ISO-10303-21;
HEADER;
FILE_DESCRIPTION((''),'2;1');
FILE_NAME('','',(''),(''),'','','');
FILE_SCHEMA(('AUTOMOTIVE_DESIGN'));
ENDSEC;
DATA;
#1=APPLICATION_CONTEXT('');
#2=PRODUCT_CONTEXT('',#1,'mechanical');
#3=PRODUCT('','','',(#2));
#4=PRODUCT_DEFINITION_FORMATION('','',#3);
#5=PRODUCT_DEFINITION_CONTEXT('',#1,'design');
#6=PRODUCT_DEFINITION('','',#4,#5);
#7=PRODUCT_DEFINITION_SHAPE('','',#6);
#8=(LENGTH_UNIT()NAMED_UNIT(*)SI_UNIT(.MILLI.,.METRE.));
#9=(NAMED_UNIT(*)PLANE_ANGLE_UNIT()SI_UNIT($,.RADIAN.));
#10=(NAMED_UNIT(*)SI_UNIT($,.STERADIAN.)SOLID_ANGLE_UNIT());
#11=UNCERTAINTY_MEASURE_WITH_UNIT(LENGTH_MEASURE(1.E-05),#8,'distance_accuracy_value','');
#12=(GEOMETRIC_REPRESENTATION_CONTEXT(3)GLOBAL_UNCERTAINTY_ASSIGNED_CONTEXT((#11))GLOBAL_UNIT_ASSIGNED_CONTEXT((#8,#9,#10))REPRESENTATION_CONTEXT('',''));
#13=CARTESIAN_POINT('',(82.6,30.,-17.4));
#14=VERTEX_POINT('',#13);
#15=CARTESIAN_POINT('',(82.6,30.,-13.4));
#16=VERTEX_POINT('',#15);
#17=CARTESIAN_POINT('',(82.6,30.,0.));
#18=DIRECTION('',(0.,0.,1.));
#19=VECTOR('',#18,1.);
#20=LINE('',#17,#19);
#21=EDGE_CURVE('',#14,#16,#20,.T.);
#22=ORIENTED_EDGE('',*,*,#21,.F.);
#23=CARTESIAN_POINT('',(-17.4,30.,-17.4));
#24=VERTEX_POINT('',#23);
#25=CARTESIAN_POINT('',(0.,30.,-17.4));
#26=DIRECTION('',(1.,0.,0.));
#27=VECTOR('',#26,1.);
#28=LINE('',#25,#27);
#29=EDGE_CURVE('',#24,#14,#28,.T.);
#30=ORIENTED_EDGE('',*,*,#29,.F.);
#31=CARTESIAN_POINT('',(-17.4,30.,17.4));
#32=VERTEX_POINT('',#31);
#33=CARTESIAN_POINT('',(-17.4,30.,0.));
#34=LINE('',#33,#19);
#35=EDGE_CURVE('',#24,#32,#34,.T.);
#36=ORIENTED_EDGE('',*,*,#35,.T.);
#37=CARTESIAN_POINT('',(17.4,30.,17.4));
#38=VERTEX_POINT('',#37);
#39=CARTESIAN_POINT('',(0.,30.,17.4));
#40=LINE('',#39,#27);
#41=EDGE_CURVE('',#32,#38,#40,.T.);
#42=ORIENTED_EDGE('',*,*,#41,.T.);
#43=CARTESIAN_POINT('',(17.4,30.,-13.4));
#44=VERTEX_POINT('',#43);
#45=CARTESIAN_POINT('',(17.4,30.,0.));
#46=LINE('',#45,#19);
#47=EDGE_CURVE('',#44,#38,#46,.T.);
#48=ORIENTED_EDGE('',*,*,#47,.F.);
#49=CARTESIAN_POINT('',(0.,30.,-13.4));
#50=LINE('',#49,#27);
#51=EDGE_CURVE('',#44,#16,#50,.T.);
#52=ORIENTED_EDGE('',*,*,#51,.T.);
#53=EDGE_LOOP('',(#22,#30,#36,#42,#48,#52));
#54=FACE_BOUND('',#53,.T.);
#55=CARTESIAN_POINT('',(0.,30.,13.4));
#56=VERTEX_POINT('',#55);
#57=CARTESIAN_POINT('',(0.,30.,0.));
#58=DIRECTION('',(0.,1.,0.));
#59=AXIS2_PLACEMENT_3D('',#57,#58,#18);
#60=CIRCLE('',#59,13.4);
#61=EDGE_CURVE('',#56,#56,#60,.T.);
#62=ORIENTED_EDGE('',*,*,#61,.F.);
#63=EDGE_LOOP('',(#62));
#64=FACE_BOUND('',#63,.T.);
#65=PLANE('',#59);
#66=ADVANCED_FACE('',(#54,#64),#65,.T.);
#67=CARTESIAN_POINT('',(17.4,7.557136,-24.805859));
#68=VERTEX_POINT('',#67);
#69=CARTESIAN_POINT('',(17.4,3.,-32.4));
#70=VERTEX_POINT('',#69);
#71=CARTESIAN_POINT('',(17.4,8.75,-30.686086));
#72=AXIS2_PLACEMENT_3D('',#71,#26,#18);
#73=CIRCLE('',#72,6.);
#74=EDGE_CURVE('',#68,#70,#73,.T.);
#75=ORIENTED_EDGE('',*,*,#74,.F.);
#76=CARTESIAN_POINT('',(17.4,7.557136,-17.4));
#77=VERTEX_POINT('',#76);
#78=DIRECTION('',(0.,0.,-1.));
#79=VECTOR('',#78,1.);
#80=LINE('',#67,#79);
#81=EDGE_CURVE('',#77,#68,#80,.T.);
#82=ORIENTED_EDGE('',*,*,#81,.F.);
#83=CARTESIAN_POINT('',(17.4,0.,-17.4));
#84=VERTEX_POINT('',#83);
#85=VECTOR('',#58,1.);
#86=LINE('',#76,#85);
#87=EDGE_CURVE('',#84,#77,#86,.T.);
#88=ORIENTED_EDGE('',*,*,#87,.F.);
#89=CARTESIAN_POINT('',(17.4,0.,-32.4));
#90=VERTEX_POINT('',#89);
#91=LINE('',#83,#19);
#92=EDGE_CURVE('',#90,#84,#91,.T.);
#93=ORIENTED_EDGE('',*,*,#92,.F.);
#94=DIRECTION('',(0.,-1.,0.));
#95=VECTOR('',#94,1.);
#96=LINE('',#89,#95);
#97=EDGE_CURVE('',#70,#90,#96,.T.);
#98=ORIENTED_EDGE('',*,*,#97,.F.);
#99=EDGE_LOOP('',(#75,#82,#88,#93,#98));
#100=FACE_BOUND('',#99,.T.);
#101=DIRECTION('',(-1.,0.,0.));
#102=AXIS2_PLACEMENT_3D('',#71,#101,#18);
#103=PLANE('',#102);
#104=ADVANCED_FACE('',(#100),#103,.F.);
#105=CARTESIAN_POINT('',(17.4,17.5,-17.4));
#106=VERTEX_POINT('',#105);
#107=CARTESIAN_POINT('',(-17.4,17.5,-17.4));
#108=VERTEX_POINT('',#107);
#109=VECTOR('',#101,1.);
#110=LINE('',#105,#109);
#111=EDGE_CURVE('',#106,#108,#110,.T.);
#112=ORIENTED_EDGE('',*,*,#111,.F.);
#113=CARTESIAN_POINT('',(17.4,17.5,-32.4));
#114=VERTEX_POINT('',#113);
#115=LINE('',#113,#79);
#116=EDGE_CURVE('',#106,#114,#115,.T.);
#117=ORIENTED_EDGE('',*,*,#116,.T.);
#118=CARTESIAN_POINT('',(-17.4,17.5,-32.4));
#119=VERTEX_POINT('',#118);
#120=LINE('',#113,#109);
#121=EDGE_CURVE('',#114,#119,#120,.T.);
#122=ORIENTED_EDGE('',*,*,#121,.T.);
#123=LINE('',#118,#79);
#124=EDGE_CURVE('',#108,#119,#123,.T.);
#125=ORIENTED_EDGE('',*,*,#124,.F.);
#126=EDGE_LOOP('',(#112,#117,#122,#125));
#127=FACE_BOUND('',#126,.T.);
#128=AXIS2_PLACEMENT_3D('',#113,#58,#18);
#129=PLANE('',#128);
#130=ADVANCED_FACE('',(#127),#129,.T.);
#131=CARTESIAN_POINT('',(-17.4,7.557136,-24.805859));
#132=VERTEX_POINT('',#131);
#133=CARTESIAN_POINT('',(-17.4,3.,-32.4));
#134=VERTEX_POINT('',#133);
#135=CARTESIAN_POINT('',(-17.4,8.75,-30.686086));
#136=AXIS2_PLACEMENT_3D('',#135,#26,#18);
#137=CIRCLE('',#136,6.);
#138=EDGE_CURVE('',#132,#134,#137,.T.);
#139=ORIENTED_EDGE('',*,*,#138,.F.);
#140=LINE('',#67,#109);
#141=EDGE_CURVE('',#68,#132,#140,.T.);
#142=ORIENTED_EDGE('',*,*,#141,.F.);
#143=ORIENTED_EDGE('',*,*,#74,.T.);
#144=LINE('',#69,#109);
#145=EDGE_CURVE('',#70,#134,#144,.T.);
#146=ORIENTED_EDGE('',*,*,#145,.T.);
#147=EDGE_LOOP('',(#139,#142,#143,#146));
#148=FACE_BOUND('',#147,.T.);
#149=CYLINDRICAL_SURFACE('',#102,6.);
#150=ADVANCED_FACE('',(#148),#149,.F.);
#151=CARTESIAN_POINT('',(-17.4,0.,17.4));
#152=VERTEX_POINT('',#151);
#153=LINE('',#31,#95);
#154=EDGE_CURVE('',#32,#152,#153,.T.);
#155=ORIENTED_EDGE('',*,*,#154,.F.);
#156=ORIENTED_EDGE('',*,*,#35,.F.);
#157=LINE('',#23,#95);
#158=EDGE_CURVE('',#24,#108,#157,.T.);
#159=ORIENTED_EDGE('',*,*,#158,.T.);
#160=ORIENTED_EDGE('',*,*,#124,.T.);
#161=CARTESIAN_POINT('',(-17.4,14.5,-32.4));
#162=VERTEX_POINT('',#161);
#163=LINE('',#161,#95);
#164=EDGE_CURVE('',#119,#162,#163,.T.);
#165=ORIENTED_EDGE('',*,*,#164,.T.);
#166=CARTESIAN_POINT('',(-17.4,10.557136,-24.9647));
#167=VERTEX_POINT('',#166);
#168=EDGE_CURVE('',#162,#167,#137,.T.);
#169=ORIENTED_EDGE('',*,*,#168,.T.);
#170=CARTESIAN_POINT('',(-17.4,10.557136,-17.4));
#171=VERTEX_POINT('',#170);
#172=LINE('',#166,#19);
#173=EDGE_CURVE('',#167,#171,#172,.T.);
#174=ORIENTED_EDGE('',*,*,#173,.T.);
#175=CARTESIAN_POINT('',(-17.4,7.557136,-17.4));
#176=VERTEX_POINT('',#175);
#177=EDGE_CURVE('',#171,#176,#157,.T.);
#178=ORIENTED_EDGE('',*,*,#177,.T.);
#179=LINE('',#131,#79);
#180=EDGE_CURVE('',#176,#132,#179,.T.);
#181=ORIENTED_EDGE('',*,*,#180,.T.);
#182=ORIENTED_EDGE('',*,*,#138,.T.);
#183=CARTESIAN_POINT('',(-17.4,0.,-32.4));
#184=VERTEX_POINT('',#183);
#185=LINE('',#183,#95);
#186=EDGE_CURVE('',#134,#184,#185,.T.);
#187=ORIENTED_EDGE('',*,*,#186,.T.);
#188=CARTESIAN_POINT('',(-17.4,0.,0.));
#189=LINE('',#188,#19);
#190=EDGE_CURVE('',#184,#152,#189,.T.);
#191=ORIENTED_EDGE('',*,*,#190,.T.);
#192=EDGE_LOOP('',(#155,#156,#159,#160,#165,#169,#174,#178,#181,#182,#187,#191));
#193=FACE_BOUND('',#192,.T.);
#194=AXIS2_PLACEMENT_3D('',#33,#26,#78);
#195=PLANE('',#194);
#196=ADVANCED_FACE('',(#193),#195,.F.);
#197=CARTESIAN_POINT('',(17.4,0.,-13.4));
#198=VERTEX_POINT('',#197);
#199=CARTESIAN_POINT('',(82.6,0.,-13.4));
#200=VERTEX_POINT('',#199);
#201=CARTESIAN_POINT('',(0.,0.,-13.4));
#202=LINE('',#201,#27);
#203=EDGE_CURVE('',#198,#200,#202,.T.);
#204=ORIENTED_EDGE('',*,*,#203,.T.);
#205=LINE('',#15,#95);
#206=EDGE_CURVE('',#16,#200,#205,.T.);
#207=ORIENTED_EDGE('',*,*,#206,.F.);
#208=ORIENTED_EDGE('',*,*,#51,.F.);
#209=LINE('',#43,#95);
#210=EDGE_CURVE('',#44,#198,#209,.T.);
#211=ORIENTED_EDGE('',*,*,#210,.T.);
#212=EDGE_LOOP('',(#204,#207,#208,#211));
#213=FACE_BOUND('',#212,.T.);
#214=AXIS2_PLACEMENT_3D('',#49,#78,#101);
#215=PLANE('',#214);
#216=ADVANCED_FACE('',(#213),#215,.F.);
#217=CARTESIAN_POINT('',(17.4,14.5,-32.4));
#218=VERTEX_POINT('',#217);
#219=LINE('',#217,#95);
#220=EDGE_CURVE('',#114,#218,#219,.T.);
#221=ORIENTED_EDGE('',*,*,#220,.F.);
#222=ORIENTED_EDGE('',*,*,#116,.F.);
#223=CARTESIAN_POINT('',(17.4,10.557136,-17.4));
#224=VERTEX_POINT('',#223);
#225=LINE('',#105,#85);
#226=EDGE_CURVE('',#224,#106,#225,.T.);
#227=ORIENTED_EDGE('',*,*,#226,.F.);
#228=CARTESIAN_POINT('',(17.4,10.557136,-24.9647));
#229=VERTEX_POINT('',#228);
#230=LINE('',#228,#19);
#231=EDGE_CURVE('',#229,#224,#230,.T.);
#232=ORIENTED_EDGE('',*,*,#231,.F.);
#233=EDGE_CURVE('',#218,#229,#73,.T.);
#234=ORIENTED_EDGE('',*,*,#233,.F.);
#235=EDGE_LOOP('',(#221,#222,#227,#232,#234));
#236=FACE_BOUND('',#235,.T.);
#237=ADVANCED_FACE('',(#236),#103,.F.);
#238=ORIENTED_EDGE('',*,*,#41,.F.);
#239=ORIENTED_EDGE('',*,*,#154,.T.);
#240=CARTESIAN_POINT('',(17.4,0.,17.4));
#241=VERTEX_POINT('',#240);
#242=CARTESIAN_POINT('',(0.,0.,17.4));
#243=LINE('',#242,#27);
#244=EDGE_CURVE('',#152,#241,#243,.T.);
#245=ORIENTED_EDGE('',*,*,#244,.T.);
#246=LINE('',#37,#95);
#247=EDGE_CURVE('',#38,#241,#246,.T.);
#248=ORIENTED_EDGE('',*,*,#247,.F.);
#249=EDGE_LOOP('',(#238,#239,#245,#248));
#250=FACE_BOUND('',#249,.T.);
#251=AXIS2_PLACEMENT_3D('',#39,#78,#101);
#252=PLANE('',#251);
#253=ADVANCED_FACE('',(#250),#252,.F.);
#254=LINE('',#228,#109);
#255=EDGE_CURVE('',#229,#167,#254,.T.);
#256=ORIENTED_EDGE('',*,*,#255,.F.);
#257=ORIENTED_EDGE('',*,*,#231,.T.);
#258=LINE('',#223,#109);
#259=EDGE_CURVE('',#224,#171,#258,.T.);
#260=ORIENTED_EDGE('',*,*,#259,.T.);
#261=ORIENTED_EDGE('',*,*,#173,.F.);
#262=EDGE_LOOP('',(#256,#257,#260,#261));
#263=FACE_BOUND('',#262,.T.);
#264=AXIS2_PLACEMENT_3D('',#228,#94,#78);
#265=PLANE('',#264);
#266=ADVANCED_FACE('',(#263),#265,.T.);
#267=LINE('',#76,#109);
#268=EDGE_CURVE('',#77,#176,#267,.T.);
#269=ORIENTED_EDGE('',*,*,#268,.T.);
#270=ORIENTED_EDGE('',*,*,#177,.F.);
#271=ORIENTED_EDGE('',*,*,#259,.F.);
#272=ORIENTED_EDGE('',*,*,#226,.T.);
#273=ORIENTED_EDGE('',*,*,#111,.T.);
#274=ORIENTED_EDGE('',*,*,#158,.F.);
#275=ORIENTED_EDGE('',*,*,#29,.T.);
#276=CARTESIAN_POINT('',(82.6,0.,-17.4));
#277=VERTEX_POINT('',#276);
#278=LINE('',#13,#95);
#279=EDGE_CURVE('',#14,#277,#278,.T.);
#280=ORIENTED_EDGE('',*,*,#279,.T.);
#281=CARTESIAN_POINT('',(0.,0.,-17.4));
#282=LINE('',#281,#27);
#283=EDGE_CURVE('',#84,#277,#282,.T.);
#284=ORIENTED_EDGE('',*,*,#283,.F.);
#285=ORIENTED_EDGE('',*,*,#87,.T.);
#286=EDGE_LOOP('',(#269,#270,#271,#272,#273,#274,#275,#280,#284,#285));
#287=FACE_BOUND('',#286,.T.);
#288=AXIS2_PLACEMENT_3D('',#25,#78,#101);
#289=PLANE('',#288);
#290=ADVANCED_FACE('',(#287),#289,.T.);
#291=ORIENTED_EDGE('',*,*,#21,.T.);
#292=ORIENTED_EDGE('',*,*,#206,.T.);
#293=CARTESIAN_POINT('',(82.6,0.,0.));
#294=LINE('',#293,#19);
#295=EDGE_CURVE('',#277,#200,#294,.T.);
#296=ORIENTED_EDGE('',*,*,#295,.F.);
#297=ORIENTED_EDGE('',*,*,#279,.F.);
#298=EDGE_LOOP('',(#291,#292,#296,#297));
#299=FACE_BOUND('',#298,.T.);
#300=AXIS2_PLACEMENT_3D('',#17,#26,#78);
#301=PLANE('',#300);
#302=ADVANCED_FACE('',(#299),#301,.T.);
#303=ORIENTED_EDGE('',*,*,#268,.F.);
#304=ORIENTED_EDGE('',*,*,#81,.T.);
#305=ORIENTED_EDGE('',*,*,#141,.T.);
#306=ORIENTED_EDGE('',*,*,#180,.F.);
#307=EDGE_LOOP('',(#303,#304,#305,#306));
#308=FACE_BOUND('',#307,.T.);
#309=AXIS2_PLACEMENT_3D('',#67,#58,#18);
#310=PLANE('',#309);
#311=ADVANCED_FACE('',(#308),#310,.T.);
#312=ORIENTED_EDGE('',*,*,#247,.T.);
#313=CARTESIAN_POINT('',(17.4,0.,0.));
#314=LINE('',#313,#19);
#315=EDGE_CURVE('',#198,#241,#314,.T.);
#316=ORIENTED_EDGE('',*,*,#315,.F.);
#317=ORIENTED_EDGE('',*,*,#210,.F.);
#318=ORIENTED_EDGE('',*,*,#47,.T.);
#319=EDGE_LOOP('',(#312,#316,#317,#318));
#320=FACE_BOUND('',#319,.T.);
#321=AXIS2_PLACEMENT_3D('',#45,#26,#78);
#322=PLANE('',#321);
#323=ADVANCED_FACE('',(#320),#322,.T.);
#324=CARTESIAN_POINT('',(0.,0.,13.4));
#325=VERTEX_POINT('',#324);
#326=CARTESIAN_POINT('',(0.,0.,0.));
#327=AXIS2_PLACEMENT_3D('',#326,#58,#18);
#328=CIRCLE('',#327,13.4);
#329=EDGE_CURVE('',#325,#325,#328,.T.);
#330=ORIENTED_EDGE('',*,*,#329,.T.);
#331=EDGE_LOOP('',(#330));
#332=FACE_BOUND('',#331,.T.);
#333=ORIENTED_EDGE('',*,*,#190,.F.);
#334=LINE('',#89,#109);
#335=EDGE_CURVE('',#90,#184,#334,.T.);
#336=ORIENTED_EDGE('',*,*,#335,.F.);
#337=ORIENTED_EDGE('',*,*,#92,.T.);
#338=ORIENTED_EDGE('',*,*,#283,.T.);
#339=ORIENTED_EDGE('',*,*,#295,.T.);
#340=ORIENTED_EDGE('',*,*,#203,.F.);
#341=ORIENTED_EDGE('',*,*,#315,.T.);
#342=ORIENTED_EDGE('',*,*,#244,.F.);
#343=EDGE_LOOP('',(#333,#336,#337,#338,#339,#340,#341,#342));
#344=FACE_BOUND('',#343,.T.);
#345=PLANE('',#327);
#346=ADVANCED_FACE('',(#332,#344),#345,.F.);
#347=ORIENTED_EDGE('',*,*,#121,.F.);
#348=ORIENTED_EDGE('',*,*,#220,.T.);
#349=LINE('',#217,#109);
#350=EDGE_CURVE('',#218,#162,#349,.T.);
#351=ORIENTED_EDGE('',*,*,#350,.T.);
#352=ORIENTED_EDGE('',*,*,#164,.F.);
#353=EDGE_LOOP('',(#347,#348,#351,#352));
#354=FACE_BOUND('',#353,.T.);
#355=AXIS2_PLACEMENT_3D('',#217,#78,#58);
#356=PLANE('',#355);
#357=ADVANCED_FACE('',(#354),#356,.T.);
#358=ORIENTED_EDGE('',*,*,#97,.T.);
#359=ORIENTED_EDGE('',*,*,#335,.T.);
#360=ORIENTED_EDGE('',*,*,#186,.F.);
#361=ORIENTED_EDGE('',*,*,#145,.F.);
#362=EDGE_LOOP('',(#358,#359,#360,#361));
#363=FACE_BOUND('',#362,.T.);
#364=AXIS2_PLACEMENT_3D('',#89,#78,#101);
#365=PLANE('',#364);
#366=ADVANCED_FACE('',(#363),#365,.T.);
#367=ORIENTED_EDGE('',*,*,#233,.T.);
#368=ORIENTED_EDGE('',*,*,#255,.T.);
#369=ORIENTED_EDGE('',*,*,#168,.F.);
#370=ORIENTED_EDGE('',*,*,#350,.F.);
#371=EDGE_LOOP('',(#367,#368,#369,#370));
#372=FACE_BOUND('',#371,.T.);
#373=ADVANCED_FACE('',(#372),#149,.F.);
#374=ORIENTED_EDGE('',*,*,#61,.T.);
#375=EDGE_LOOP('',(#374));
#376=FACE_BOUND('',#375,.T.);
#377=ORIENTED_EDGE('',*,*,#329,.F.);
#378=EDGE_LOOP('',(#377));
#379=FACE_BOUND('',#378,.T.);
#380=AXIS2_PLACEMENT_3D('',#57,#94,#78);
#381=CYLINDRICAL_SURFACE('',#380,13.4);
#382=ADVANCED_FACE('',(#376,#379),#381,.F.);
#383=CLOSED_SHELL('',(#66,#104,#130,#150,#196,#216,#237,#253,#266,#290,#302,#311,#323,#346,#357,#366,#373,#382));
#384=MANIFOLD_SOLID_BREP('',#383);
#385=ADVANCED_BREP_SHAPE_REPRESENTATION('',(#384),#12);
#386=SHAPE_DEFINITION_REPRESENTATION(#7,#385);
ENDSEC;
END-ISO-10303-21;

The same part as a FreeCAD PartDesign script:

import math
import FreeCAD as App
import Part
import Sketcher
Q = App.Units.Quantity

doc = App.newDocument("Part")
body = doc.addObject("PartDesign::Body", "Body")

# Sketch on XZ plane
sketch1 = body.newObject("Sketcher::SketchObject", "Sketch")
sketch1.AttachmentSupport = (doc.getObject("XZ_Plane"), [""])
sketch1.MapMode = "FlatFace"
sketch1.addGeometry([
    Part.LineSegment(App.Vector(82.6, -17.4, 0), App.Vector(-17.4, -17.4, 0)),  # 0
    Part.LineSegment(App.Vector(-17.4, -17.4, 0), App.Vector(-17.4, 17.4, 0)),  # 1
    Part.LineSegment(App.Vector(-17.4, 17.4, 0), App.Vector(17.4, 17.4, 0)),  # 2
    Part.LineSegment(App.Vector(17.4, 17.4, 0), App.Vector(17.4, -13.4, 0)),  # 3
    Part.LineSegment(App.Vector(17.4, -13.4, 0), App.Vector(82.6, -13.4, 0)),  # 4
    Part.LineSegment(App.Vector(82.6, -13.4, 0), App.Vector(82.6, -17.4, 0)),  # 5
    Part.Circle(App.Vector(0, 0, 0), App.Vector(0, 0, 1), 13.4),  # 6
], False)
sketch1.addConstraint([
    Sketcher.Constraint("Coincident", 0, 2, 1, 1),
    Sketcher.Constraint("Coincident", 1, 2, 2, 1),
    Sketcher.Constraint("Coincident", 2, 2, 3, 1),
    Sketcher.Constraint("Coincident", 3, 2, 4, 1),
    Sketcher.Constraint("Coincident", 4, 2, 5, 1),
    Sketcher.Constraint("Coincident", 5, 2, 0, 1),
    Sketcher.Constraint("Horizontal", 0),
    Sketcher.Constraint("Vertical", 1),
    Sketcher.Constraint("Horizontal", 2),
    Sketcher.Constraint("Vertical", 3),
    Sketcher.Constraint("Horizontal", 4),
    Sketcher.Constraint("Vertical", 5),
    Sketcher.Constraint("Coincident", 6, 3, -1, 1),
    Sketcher.Constraint("Symmetric", 0, 2, 2, 2, -1, 1),
    Sketcher.Constraint("Equal", 2, 1),
    Sketcher.Constraint("Diameter", 6, Q("26.8 mm")),
    Sketcher.Constraint("DistanceX", 0, 2, 0, 1, Q("100 mm")),
    Sketcher.Constraint("DistanceY", 5, 2, 5, 1, Q("4 mm")),
    Sketcher.Constraint("DistanceX", 2, 1, 2, 2, Q("34.8 mm")),
])
pad1 = body.newObject("PartDesign::Pad", "Pad")
pad1.Profile = sketch1
pad1.Length = 30
pad1.Reversed = True

# Sketch on YZ plane
sketch2 = body.newObject("Sketcher::SketchObject", "Sketch001")
sketch2.AttachmentSupport = (doc.getObject("YZ_Plane"), [""])
sketch2.MapMode = "FlatFace"
sketch2.AttachmentOffset = App.Placement(App.Vector(0, 0, -17.4), App.Rotation())
sketch2.addGeometry([
    Part.LineSegment(App.Vector(0, -32.4, 0), App.Vector(0, -17.4, 0)),  # 0
    Part.LineSegment(App.Vector(0, -17.4, 0), App.Vector(7.557136, -17.4, 0)),  # 1
    Part.LineSegment(App.Vector(7.557136, -17.4, 0), App.Vector(7.557136, -24.805859, 0)),  # 2
    Part.ArcOfCircle(Part.Circle(App.Vector(8.75, -30.686086, 0), App.Vector(0, 0, 1), 6), math.radians(101.467422), math.radians(196.597842)),  # 3
    Part.LineSegment(App.Vector(3, -32.4, 0), App.Vector(0, -32.4, 0)),  # 4
    Part.LineSegment(App.Vector(17.5, -32.4, 0), App.Vector(14.5, -32.4, 0)),  # 5
    Part.ArcOfCircle(Part.Circle(App.Vector(8.75, -30.686086, 0), App.Vector(0, 0, 1), 6), math.radians(-16.597842), math.radians(72.470953)),  # 6
    Part.LineSegment(App.Vector(10.557136, -24.9647, 0), App.Vector(10.557136, -17.4, 0)),  # 7
    Part.LineSegment(App.Vector(10.557136, -17.4, 0), App.Vector(17.5, -17.4, 0)),  # 8
    Part.LineSegment(App.Vector(17.5, -17.4, 0), App.Vector(17.5, -32.4, 0)),  # 9
], False)
sketch2.addConstraint([
    Sketcher.Constraint("Coincident", 0, 2, 1, 1),
    Sketcher.Constraint("Coincident", 1, 2, 2, 1),
    Sketcher.Constraint("Coincident", 2, 2, 3, 1),
    Sketcher.Constraint("Coincident", 3, 2, 4, 1),
    Sketcher.Constraint("Coincident", 4, 2, 0, 1),
    Sketcher.Constraint("Coincident", 5, 2, 6, 1),
    Sketcher.Constraint("Coincident", 6, 2, 7, 1),
    Sketcher.Constraint("Coincident", 7, 2, 8, 1),
    Sketcher.Constraint("Coincident", 8, 2, 9, 1),
    Sketcher.Constraint("Coincident", 9, 2, 5, 1),
    Sketcher.Constraint("Vertical", 0),
    Sketcher.Constraint("Horizontal", 1),
    Sketcher.Constraint("Vertical", 2),
    Sketcher.Constraint("Horizontal", 4),
    Sketcher.Constraint("Horizontal", 5),
    Sketcher.Constraint("Vertical", 7),
    Sketcher.Constraint("Horizontal", 8),
    Sketcher.Constraint("Vertical", 9),
    Sketcher.Constraint("Coincident", 6, 3, 3, 3),
    Sketcher.Constraint("Equal", 3, 6),
    Sketcher.Constraint("PointOnObject", 0, 2, -2),
    Sketcher.Constraint("Horizontal", 4, 2, 5, 2),
    Sketcher.Constraint("Horizontal", 1, 2, 7, 2),
    Sketcher.Constraint("Equal", 4, 5),
    Sketcher.Constraint("Radius", 3, Q("6 mm")),
    Sketcher.Constraint("DistanceX", 4, 2, 4, 1, Q("3 mm")),
    Sketcher.Constraint("DistanceY", 0, 1, 0, 2, Q("15 mm")),
    Sketcher.Constraint("DistanceX", 2, 2, 6, 2, Q("3 mm")),
    Sketcher.Constraint("DistanceY", 0, 2, -1, 1, Q("17.4 mm")),
    Sketcher.Constraint("DistanceX", -1, 1, 5, 2, Q("14.5 mm")),
    Sketcher.Constraint("DistanceY", 7, 1, 7, 2, Q("7.5647 mm")),
])
pad2 = body.newObject("PartDesign::Pad", "Pad001")
pad2.Profile = sketch2
pad2.Length = 34.8

doc.recompute()
